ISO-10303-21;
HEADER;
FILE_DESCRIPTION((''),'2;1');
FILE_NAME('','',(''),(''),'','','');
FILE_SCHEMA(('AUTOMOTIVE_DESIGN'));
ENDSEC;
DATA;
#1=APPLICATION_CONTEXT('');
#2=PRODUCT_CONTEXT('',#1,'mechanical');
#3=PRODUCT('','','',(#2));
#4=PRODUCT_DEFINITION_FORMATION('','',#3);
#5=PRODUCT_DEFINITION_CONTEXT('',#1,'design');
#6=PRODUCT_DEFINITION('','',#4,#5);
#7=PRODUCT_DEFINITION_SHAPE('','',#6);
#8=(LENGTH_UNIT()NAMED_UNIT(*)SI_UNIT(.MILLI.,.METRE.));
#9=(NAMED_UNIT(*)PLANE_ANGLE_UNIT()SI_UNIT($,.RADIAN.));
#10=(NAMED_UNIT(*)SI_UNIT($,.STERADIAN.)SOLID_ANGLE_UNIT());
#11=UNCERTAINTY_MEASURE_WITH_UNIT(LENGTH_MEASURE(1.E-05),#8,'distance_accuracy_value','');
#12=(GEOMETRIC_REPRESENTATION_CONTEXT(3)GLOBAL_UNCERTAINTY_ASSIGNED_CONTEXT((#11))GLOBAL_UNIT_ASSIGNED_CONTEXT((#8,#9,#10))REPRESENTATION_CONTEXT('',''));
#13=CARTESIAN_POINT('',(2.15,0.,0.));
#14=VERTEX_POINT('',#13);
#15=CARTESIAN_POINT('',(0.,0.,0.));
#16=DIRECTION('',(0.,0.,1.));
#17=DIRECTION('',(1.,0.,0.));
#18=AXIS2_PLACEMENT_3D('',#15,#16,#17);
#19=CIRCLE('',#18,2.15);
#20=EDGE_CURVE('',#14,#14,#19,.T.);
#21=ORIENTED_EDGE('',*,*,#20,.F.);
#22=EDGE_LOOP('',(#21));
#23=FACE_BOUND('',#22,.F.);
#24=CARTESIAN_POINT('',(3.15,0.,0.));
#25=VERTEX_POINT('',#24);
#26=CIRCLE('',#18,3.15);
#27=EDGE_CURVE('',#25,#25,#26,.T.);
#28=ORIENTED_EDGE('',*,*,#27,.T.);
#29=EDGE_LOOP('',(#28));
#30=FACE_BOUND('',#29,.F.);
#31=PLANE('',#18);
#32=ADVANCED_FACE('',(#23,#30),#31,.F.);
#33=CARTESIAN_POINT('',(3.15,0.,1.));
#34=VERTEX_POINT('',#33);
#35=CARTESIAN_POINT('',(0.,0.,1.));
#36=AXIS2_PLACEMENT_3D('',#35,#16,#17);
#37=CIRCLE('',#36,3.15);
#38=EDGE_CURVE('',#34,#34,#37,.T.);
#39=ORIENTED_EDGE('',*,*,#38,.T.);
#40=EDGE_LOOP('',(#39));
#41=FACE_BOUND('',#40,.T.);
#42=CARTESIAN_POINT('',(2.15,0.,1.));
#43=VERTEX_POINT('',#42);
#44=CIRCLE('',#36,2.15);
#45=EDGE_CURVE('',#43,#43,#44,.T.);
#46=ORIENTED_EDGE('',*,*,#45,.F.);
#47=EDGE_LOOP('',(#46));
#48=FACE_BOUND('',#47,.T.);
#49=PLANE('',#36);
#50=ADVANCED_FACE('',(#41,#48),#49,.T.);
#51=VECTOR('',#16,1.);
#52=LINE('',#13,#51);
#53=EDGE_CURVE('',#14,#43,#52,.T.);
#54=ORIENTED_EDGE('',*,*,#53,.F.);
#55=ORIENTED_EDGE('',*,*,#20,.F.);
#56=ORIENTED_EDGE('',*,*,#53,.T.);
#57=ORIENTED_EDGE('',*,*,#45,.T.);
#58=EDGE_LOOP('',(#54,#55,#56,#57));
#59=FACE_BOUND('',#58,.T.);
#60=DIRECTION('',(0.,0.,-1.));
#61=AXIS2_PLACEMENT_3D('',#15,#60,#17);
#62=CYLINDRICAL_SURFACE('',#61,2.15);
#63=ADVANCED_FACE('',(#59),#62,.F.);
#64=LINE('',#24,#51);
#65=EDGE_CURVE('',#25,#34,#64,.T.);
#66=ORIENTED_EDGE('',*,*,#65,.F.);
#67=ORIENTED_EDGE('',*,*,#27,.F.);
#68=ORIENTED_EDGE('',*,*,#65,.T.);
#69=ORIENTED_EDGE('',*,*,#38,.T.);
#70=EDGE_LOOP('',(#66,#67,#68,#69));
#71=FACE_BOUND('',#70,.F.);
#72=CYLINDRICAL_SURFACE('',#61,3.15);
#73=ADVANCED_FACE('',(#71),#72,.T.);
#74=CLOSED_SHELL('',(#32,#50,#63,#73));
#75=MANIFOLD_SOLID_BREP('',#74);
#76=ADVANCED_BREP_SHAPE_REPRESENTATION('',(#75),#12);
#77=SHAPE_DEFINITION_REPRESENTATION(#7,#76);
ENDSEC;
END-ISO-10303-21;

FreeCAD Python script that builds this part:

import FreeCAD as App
import Part
import Sketcher

V = App.Vector
Q = App.Units.Quantity

doc = App.newDocument("Part")
body = doc.addObject("PartDesign::Body", "Body")

# Sketch on XY plane
sketch1 = body.newObject("Sketcher::SketchObject", "Sketch")
sketch1.AttachmentSupport = (doc.getObject("XY_Plane"), [""])
sketch1.MapMode = "FlatFace"
sketch1.addGeometry(Part.Circle(V(0, 0, 0), V(0, 0, 1), 3.1), False)
sketch1.addGeometry(Part.Circle(V(0, 0, 0), V(0, 0, 1), 2.1), False)
sketch1.addConstraint(Sketcher.Constraint("Coincident", 0, 3, -1, 1))
sketch1.addConstraint(Sketcher.Constraint("Coincident", 1, 3, -1, 1))
sketch1.addConstraint(Sketcher.Constraint("Diameter", 1, Q("4.3 mm")))
sketch1.addConstraint(Sketcher.Constraint("Diameter", 0, Q("6.3 mm")))
pad1 = body.newObject("PartDesign::Pad", "Pad")
pad1.Profile = sketch1
pad1.Length = 1

doc.recompute()
